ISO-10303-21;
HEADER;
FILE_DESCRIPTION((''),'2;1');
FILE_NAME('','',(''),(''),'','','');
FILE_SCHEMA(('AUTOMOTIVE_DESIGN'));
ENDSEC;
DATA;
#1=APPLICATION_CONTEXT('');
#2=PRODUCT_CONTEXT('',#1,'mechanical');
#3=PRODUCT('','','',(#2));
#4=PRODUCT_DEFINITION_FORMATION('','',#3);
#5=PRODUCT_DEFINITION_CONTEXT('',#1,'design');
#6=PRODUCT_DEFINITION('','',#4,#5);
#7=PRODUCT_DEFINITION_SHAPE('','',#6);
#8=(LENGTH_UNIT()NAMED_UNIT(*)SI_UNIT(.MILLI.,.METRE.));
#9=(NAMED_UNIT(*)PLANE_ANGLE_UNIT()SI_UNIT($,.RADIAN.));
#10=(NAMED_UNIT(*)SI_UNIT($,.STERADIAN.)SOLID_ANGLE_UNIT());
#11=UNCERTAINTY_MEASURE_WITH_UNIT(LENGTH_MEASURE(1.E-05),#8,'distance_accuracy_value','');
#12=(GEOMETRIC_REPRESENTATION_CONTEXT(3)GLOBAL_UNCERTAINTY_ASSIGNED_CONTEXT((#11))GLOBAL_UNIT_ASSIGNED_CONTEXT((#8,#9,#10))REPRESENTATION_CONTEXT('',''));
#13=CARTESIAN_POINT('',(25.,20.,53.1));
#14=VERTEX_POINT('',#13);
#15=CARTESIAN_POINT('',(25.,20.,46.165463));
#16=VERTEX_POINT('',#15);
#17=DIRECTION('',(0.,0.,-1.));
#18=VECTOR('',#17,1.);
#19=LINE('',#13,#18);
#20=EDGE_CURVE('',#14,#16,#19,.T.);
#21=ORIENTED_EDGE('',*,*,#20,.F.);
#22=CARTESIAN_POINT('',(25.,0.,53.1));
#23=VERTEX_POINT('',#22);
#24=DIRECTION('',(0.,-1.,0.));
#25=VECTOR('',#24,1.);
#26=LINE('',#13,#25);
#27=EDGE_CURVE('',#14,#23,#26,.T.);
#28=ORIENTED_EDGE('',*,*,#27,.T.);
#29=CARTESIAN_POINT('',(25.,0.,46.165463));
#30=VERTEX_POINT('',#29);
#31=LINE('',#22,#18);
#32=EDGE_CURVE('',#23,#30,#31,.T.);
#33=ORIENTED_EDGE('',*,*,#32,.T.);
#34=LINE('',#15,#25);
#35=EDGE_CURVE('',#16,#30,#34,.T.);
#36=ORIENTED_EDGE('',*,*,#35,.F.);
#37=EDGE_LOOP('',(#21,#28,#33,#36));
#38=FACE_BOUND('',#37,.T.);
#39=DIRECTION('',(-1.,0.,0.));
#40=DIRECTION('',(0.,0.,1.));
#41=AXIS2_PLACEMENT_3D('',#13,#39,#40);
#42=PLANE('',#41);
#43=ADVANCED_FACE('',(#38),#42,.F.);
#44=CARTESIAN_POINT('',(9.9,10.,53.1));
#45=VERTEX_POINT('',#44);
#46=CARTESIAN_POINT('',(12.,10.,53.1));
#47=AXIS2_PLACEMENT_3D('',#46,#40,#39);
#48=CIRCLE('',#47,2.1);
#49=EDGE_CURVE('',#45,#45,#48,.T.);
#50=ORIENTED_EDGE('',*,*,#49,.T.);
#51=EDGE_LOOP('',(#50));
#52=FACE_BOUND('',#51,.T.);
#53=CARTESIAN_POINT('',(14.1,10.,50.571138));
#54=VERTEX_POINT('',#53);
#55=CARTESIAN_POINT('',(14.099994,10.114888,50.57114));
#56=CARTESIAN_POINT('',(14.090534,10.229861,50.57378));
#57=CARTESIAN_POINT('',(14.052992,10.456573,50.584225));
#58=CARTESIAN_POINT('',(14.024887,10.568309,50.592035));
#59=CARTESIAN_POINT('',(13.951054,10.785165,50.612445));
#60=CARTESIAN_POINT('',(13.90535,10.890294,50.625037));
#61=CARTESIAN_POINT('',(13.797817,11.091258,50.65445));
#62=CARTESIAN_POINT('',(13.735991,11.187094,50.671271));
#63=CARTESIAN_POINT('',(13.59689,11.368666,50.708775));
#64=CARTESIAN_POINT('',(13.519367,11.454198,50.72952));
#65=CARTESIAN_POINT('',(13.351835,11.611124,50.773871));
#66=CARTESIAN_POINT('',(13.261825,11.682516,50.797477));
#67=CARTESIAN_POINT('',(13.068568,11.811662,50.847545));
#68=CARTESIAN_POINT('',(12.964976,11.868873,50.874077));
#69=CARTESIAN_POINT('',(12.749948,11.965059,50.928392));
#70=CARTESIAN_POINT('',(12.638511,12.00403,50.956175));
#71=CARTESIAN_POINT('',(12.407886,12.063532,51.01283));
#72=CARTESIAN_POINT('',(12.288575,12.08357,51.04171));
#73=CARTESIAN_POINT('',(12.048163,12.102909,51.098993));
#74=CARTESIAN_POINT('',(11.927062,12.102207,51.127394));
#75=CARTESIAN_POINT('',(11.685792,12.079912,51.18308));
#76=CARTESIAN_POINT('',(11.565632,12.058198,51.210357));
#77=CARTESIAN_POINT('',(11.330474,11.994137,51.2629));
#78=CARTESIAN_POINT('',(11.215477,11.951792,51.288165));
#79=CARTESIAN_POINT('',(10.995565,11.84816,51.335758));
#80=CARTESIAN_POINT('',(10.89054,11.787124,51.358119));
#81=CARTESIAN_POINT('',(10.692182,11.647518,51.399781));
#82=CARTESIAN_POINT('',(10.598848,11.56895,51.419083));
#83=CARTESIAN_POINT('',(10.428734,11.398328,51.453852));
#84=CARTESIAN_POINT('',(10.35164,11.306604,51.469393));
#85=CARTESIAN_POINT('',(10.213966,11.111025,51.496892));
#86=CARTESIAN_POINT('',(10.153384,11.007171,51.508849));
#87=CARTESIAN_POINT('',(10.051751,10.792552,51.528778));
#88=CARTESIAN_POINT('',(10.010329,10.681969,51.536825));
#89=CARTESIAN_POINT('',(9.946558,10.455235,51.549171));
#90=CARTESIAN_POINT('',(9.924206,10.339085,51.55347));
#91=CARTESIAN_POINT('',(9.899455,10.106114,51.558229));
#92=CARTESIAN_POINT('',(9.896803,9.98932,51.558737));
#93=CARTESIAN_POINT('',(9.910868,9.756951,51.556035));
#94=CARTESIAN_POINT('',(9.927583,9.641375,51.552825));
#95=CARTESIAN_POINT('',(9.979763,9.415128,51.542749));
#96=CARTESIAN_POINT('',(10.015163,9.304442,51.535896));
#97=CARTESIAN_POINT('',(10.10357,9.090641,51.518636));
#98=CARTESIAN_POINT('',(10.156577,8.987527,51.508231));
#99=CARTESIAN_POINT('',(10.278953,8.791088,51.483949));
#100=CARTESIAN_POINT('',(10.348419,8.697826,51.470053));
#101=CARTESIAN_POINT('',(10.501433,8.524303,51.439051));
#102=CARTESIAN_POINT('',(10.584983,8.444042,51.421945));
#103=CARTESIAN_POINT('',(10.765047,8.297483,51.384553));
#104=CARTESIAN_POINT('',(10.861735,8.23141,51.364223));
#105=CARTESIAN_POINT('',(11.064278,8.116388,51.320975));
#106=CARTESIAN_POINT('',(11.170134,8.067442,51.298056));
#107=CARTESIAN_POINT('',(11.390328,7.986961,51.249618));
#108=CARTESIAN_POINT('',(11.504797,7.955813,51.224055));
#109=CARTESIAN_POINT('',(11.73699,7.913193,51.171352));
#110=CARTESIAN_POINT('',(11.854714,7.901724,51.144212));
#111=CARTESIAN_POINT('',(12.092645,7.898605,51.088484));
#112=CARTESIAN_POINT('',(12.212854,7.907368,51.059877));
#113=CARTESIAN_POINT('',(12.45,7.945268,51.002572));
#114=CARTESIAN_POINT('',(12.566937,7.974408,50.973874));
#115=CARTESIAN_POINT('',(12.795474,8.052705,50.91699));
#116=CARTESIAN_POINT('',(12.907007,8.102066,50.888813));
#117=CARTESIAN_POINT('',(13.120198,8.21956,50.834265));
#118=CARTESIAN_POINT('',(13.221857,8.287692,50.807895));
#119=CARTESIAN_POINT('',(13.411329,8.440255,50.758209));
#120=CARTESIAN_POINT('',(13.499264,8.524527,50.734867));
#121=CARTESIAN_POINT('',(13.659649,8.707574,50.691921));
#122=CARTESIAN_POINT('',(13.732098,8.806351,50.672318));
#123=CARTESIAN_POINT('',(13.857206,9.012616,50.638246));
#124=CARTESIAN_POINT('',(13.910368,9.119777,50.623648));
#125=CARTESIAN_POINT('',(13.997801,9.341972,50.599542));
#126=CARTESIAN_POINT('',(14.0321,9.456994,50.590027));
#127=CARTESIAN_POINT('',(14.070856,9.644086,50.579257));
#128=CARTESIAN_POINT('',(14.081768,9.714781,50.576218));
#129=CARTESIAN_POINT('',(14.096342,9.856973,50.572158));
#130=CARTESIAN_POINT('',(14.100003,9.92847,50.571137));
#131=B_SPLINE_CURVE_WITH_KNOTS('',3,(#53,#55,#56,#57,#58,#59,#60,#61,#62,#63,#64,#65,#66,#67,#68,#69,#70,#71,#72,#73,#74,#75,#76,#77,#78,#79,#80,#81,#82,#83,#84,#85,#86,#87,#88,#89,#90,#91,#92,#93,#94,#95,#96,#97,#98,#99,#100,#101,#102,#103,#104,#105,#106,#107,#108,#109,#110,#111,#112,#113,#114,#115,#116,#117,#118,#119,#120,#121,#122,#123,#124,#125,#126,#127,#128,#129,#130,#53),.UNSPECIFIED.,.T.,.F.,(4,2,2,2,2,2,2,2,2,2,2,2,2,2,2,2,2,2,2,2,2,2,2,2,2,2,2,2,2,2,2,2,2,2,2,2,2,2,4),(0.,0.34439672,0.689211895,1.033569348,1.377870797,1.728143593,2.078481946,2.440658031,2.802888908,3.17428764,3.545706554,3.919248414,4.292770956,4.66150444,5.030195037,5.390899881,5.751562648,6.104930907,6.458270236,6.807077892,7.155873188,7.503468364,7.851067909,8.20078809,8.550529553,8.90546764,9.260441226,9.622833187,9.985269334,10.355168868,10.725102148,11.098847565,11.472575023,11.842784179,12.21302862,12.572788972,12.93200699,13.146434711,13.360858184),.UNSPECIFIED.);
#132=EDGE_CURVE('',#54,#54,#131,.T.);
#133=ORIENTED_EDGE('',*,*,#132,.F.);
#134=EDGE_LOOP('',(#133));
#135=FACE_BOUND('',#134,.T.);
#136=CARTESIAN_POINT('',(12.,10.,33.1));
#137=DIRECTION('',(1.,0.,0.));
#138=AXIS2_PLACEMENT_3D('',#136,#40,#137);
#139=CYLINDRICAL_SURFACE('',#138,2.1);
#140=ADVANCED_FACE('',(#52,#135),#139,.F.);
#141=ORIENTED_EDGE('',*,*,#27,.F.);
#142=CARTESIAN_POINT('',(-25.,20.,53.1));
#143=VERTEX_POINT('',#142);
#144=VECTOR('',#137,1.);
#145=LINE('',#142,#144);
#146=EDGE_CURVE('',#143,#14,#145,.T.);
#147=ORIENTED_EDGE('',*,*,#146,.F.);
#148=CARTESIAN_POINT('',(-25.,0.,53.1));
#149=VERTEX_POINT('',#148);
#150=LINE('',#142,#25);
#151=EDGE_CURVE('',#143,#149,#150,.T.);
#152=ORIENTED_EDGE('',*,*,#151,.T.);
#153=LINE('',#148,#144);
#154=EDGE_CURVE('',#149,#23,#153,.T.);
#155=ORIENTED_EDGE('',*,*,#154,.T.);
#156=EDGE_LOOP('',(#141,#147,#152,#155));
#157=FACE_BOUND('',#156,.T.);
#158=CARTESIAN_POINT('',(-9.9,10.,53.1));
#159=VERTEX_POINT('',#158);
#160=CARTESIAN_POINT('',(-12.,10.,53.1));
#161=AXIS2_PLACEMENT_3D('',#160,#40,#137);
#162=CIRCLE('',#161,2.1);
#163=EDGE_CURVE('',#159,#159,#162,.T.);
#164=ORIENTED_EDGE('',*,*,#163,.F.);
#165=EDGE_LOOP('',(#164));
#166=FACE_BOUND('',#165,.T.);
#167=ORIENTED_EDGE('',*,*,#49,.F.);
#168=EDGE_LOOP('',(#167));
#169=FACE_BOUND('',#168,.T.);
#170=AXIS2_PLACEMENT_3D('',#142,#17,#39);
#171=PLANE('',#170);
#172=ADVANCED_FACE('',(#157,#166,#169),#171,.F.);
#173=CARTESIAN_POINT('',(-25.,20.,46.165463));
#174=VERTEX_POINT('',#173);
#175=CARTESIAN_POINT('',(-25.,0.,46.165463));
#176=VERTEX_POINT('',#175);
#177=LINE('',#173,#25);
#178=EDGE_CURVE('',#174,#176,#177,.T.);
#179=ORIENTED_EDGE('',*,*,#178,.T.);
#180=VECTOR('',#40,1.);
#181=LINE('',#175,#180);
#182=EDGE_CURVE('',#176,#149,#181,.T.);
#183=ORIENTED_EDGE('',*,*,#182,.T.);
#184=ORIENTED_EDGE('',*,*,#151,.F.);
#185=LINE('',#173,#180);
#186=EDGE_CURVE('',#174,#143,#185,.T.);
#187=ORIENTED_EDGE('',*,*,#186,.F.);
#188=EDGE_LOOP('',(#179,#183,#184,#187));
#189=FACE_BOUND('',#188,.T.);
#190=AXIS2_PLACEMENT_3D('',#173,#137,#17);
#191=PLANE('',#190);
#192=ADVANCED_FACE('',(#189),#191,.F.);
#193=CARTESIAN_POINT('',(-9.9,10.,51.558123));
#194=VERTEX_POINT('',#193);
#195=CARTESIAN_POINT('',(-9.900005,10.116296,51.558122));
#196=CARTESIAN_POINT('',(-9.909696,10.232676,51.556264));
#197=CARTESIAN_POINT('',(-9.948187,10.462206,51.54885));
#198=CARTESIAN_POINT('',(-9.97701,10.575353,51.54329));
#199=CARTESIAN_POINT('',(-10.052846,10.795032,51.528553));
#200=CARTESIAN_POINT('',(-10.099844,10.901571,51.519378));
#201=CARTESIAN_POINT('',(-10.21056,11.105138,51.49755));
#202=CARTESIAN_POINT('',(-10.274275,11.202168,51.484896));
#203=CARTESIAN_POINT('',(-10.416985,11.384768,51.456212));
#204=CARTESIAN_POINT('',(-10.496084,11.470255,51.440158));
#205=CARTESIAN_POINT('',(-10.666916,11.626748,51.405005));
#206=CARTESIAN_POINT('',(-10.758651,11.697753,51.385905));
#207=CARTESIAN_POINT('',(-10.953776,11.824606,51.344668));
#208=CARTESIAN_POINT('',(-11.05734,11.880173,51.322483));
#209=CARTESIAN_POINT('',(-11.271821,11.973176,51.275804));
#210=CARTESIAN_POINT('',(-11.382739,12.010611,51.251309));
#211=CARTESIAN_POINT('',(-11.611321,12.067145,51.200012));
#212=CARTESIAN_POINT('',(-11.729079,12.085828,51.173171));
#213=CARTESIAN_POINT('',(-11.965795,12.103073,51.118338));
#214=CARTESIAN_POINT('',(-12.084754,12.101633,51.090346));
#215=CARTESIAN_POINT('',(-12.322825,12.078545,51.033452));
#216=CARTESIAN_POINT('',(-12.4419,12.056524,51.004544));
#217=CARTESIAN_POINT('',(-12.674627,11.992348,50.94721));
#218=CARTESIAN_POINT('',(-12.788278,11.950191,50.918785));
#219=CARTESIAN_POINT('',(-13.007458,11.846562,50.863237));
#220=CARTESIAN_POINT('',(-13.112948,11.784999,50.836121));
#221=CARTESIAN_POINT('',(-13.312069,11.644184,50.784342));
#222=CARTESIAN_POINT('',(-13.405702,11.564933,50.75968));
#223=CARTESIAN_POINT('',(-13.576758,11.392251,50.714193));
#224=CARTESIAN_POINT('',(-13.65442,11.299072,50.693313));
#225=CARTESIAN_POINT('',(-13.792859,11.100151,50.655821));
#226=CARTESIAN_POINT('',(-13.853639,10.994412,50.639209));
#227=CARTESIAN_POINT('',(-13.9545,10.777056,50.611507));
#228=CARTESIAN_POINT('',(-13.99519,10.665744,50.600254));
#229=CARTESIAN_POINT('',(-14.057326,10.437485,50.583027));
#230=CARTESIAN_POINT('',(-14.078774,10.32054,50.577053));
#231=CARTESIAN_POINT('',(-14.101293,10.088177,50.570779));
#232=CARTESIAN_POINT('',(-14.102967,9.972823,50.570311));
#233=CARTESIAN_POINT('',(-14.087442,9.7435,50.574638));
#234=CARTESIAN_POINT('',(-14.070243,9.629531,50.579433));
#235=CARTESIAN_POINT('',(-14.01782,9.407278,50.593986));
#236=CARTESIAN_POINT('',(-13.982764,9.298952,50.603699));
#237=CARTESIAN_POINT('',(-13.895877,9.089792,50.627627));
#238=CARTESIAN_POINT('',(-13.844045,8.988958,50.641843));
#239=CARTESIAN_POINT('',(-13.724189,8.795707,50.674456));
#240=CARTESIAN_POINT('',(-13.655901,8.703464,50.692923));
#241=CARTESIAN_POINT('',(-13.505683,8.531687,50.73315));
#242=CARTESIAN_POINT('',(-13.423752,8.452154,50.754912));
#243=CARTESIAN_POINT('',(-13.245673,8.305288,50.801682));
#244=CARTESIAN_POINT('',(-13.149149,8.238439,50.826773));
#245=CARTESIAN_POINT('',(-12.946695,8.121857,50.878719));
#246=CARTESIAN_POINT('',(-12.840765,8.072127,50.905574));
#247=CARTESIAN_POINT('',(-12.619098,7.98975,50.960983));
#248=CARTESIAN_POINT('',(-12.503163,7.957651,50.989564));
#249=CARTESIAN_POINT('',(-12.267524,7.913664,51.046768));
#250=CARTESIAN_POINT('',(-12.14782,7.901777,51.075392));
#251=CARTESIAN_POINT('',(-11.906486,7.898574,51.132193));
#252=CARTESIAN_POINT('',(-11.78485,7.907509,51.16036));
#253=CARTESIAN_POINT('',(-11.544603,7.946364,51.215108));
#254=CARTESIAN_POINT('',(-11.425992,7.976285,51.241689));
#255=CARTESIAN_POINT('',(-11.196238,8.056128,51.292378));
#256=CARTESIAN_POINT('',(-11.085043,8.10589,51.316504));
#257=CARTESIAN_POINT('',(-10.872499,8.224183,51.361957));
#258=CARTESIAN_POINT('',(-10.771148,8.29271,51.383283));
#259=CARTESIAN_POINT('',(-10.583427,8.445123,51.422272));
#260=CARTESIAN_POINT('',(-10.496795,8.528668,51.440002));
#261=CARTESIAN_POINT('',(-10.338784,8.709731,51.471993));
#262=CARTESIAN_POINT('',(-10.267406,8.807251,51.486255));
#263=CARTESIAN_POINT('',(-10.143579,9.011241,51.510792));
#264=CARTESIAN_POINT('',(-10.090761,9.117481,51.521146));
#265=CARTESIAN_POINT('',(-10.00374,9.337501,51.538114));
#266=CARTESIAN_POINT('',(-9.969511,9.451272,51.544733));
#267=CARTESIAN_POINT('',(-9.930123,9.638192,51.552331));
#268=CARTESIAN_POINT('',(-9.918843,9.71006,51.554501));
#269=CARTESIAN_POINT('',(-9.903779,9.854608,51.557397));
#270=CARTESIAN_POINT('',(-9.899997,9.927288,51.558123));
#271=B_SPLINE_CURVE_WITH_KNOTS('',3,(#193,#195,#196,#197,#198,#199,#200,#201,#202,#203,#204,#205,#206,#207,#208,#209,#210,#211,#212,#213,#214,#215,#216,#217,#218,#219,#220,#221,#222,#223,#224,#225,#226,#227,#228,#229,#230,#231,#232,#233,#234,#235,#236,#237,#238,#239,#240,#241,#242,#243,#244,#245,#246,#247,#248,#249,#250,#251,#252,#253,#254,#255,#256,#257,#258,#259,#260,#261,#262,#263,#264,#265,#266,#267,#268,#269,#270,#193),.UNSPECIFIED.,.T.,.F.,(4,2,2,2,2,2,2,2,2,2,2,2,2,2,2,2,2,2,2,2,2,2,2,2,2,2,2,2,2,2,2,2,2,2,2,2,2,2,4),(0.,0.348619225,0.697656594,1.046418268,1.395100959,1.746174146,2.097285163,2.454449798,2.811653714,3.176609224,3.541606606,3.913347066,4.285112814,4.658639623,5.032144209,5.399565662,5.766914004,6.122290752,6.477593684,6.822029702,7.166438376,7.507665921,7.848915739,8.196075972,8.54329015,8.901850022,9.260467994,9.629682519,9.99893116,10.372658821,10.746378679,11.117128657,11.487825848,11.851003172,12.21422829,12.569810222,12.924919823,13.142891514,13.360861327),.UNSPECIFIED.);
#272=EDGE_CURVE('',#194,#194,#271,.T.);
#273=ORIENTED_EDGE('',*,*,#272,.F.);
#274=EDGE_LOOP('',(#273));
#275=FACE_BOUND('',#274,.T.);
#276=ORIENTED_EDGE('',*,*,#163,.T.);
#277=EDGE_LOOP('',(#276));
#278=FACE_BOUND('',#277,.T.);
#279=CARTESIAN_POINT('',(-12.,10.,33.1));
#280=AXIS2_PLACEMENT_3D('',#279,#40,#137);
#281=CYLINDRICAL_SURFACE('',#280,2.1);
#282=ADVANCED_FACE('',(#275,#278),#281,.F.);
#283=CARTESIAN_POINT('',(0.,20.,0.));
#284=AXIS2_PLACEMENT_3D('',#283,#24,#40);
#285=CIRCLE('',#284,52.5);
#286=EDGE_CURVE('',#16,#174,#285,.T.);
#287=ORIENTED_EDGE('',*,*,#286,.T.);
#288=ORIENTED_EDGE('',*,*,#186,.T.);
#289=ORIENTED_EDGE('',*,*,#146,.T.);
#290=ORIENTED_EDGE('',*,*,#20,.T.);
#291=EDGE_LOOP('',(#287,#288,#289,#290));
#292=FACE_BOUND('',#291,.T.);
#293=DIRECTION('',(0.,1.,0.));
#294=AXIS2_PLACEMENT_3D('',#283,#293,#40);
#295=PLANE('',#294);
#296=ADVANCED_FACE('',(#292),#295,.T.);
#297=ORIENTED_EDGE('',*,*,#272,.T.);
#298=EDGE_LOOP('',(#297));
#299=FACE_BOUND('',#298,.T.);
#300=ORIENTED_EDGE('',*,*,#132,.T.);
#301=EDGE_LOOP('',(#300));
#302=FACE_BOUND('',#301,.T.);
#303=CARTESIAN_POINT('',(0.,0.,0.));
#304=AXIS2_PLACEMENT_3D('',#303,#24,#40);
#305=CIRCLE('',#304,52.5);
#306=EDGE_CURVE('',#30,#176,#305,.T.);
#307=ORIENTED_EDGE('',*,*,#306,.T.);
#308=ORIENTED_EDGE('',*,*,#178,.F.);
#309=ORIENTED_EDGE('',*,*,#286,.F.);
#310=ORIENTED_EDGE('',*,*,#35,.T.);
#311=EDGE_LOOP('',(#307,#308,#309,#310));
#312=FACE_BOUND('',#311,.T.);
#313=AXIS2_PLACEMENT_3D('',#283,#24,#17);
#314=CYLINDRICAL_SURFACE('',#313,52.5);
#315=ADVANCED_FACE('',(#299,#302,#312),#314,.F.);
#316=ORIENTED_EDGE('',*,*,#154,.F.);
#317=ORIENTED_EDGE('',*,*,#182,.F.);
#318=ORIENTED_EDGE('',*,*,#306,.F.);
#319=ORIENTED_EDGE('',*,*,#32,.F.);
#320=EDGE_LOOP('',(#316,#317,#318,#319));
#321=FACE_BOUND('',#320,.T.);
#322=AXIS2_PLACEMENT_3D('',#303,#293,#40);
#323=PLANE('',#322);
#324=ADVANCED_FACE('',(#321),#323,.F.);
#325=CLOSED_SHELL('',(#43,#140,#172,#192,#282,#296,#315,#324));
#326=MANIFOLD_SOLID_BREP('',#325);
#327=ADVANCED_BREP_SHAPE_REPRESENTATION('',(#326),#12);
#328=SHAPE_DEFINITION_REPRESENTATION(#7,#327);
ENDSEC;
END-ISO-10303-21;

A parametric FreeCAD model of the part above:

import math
import FreeCAD as App
import Part
import Sketcher
from FreeCAD import Vector
Q = App.Units.Quantity

doc = App.newDocument("Part")
params = doc.addObject("Spreadsheet::Sheet", "Params")
for row, (alias, value) in enumerate([
    ("sketch1_radius", "52.5 mm"),
    ("sketch1_width", "50 mm"),
    ("pad1_length", "20 mm"),
    ("sketch2_diameter", "4.2 mm"),
    ("pocket1_length", "20 mm"),
], start=1):
    params.set(f"A{row}", alias)
    params.set(f"B{row}", "=" + value)
    params.setAlias(f"B{row}", alias)

body = doc.addObject("PartDesign::Body", "Body")

# Sketch on XZ plane
sketch1 = body.newObject("Sketcher::SketchObject", "Sketch")
sketch1.AttachmentSupport = (doc.getObject("XZ_Plane"), [""])
sketch1.MapMode = "FlatFace"
sketch1.addGeometry(Part.LineSegment(Vector(-25, 46, 0), Vector(-25, 53, 0)), False)
sketch1.addGeometry(Part.LineSegment(Vector(-25, 53, 0), Vector(25, 53, 0)), False)
sketch1.addGeometry(Part.LineSegment(Vector(25, 53, 0), Vector(25, 46, 0)), False)
sketch1.addGeometry(Part.ArcOfCircle(Part.Circle(Vector(0, 0, 0), Vector(0, 0, 1), 53), math.radians(62), math.radians(118)), False)
sketch1.addConstraint(Sketcher.Constraint("Coincident", 0, 2, 1, 1))
sketch1.addConstraint(Sketcher.Constraint("Coincident", 1, 2, 2, 1))
sketch1.addConstraint(Sketcher.Constraint("Coincident", 2, 2, 3, 1))
sketch1.addConstraint(Sketcher.Constraint("Coincident", 3, 2, 0, 1))
sketch1.addConstraint(Sketcher.Constraint("Vertical", 0))
sketch1.addConstraint(Sketcher.Constraint("Horizontal", 1))
sketch1.addConstraint(Sketcher.Constraint("Vertical", 2))
sketch1.addConstraint(Sketcher.Constraint("Coincident", 3, 3, -1, 1))
sketch1.addConstraint(Sketcher.Constraint("Horizontal", 2, 2, 3, 2))
sketch1.addConstraint(Sketcher.Constraint("Radius", 3, Q("52.5 mm")))
sketch1.addConstraint(Sketcher.Constraint("DistanceX", 1, 1, 1, 2, Q("50 mm")))
sketch1.addConstraint(Sketcher.Constraint("DistanceY", -1, 1, 0, 2, Q("53.1 mm")))
sketch1.setExpression("Constraints[9]", "Params.sketch1_radius")
sketch1.setExpression("Constraints[10]", "Params.sketch1_width")
pad1 = body.newObject("PartDesign::Pad", "Pad")
pad1.Profile = sketch1
pad1.setExpression("Length", "Params.pad1_length")
pad1.Reversed = True

# Sketch on XY plane
sketch2 = body.newObject("Sketcher::SketchObject", "Sketch001")
sketch2.AttachmentSupport = (doc.getObject("XY_Plane"), [""])
sketch2.MapMode = "FlatFace"
sketch2.AttachmentOffset = App.Placement(Vector(0, 0, 53.1), App.Rotation())
sketch2.addGeometry(Part.Circle(Vector(-12, 10, 0), Vector(0, 0, 1), 2.1), False)
sketch2.addGeometry(Part.Circle(Vector(12, 10, 0), Vector(0, 0, 1), 2.1), False)
sketch2.addConstraint(Sketcher.Constraint("Equal", 0, 1))
sketch2.addConstraint(Sketcher.Constraint("Symmetric", 0, 3, 1, 3, -2))
sketch2.addConstraint(Sketcher.Constraint("Diameter", 0, Q("4.2 mm")))
sketch2.addConstraint(Sketcher.Constraint("DistanceX", 0, 3, -1, 1, Q("12 mm")))
sketch2.addConstraint(Sketcher.Constraint("DistanceY", -1, 1, 0, 3, Q("10 mm")))
sketch2.setExpression("Constraints[2]", "Params.sketch2_diameter")
pocket1 = body.newObject("PartDesign::Pocket", "Pocket")
pocket1.Profile = sketch2
pocket1.setExpression("Length", "Params.pocket1_length")

doc.recompute()
